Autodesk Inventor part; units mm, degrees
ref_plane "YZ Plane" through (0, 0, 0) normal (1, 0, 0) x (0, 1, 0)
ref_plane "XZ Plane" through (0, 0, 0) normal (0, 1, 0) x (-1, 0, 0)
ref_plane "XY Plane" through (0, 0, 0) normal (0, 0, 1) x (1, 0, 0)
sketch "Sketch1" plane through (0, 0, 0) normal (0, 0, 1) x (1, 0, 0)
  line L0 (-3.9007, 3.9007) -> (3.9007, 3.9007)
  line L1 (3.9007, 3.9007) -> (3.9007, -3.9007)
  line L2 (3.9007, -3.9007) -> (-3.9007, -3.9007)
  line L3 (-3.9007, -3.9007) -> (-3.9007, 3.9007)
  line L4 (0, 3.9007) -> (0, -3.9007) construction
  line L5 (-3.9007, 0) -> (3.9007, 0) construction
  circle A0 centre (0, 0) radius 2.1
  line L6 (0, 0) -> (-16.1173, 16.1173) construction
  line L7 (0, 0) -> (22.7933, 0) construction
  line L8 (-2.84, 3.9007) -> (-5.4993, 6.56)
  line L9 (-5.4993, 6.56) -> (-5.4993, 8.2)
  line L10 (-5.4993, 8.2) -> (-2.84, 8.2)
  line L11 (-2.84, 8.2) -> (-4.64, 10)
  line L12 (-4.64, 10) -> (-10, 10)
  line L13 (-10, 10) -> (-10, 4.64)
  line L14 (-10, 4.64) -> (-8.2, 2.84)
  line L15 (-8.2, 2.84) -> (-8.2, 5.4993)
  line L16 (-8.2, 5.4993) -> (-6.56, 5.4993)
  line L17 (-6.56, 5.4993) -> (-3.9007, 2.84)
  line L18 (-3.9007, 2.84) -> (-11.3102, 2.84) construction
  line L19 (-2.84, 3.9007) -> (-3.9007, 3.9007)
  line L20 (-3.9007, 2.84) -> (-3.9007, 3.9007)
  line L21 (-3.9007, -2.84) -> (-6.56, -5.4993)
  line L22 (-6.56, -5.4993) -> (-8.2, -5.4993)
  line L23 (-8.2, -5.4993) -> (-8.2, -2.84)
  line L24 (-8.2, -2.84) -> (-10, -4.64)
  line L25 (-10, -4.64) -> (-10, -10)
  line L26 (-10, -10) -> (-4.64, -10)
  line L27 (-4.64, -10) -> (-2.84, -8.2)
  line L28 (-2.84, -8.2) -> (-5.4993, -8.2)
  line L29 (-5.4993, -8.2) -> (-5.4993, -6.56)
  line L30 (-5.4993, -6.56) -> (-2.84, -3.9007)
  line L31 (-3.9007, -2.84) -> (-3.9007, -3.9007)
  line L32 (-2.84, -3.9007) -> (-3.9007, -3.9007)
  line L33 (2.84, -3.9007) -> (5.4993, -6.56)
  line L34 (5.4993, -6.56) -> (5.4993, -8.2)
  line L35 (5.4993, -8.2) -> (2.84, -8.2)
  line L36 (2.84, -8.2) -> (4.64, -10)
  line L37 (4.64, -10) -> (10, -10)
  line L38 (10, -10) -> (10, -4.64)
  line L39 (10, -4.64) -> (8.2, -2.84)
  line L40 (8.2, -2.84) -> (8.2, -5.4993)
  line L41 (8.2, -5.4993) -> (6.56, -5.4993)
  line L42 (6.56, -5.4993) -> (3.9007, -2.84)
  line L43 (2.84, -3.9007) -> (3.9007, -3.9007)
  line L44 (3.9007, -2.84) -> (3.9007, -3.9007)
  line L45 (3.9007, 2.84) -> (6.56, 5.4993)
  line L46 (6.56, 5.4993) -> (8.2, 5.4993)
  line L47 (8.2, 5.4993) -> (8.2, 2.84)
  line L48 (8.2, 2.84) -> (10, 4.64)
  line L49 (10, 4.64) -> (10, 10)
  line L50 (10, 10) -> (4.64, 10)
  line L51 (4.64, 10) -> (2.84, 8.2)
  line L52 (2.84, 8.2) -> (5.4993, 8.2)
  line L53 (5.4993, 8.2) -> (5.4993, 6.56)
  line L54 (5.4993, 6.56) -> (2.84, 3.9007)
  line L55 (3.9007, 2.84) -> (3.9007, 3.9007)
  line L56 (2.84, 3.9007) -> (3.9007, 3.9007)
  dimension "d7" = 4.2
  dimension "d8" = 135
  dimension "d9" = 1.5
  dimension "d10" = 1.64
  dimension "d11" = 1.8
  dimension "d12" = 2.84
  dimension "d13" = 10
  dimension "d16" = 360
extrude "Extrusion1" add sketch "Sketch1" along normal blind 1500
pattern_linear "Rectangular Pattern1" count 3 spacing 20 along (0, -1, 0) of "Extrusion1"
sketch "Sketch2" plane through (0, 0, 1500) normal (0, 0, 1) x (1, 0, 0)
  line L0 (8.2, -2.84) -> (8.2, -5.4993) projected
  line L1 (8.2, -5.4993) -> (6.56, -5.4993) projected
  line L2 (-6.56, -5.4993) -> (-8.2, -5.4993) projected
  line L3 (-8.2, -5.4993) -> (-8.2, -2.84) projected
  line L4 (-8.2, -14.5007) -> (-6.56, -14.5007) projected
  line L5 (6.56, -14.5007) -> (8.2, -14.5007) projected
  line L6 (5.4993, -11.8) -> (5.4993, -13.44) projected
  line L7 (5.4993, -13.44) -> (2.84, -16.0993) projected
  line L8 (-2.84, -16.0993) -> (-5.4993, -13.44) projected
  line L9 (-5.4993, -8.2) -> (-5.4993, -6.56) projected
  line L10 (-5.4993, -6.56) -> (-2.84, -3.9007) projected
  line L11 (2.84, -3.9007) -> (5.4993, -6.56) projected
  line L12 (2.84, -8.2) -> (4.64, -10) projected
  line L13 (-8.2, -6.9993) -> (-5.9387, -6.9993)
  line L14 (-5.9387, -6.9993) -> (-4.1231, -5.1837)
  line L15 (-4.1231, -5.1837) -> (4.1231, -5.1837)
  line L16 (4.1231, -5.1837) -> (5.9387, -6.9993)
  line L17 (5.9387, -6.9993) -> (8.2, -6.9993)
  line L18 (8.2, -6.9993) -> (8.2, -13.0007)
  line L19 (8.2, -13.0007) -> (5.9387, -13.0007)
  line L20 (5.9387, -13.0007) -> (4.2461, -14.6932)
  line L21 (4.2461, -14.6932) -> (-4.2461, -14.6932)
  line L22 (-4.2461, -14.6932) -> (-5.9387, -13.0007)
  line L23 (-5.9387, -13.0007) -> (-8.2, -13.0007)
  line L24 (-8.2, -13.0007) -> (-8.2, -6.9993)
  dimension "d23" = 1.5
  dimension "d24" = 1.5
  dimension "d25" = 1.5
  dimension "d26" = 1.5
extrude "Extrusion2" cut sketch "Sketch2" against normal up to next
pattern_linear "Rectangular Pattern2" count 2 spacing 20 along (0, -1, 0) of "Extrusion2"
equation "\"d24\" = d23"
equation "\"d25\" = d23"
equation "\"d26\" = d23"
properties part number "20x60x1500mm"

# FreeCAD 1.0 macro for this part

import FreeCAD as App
import Part
import Sketcher
from FreeCAD import Vector


def add_polygon(sketch, points):
    """Adds a closed chain of lines whose ends are joined by coincident constraints."""
    first, n = sketch.GeometryCount, len(points)
    for a, b in zip(points, points[1:] + points[:1]):
        sketch.addGeometry(Part.LineSegment(App.Vector(*a, 0), App.Vector(*b, 0)), False)
    for i in range(n):
        sketch.addConstraint(Sketcher.Constraint("Coincident", first + i, 2, first + (i + 1) % n, 1))

doc = App.newDocument("Part")
params = doc.addObject("Spreadsheet::Sheet", "Params")
for row, (alias, value) in enumerate([
    ("sketch1_diameter", "4.2 mm"),
    ("sketch1_width", "1.64 mm"),
    ("pad1_length", "1500 mm"),
    ("linearpattern_pitch", "20 mm"),
    ("pocket1_length", "1500 mm"),
    ("linearpattern2_pitch", "20 mm"),
], start=1):
    params.set(f"A{row}", alias)
    params.set(f"B{row}", "=" + value)
    params.setAlias(f"B{row}", alias)

body = doc.addObject("PartDesign::Body", "Body")

# Sketch on XY plane
sketch1 = body.newObject("Sketcher::SketchObject", "Sketch")
sketch1.AttachmentSupport = (doc.getObject("XY_Plane"), [""])
sketch1.MapMode = "FlatFace"
add_polygon(sketch1, [(-6.56, 5.4993), (-3.9007, 2.84), (-3.9007, -2.84), (-6.56, -5.4993), (-8.2, -5.4993), (-8.2, -2.84), (-10, -4.64), (-10, -10), (-4.64, -10), (-2.84, -8.2), (-5.4993, -8.2), (-5.4993, -6.56), (-2.84, -3.9007), (2.84, -3.9007), (5.4993, -6.56), (5.4993, -8.2), (2.84, -8.2), (4.64, -10), (10, -10), (10, -4.64), (8.2, -2.84), (8.2, -5.4993), (6.56, -5.4993), (3.9007, -2.84), (3.9007, 2.84), (6.56, 5.4993), (8.2, 5.4993), (8.2, 2.84), (10, 4.64), (10, 10), (4.64, 10), (2.84, 8.2), (5.4993, 8.2), (5.4993, 6.56), (2.84, 3.9007), (-2.84, 3.9007), (-5.4993, 6.56), (-5.4993, 8.2), (-2.84, 8.2), (-4.64, 10), (-10, 10), (-10, 4.64), (-8.2, 2.84), (-8.2, 5.4993)])  # lines 0-43
sketch1.addGeometry(Part.Circle(Vector(0, 0, 0), Vector(0, 0, 1), 2.1), False)  # 44
sketch1.addConstraint([
    Sketcher.Constraint("Vertical", 1),
    Sketcher.Constraint("Horizontal", 3),
    Sketcher.Constraint("Vertical", 4),
    Sketcher.Constraint("Vertical", 6),
    Sketcher.Constraint("Horizontal", 7),
    Sketcher.Constraint("Horizontal", 9),
    Sketcher.Constraint("Vertical", 10),
    Sketcher.Constraint("Horizontal", 12),
    Sketcher.Constraint("Vertical", 14),
    Sketcher.Constraint("Horizontal", 15),
    Sketcher.Constraint("Horizontal", 17),
    Sketcher.Constraint("Vertical", 18),
    Sketcher.Constraint("Vertical", 20),
    Sketcher.Constraint("Horizontal", 21),
    Sketcher.Constraint("Vertical", 23),
    Sketcher.Constraint("Horizontal", 25),
    Sketcher.Constraint("Vertical", 26),
    Sketcher.Constraint("Vertical", 28),
    Sketcher.Constraint("Horizontal", 29),
    Sketcher.Constraint("Horizontal", 31),
    Sketcher.Constraint("Vertical", 32),
    Sketcher.Constraint("Horizontal", 34),
    Sketcher.Constraint("Vertical", 36),
    Sketcher.Constraint("Horizontal", 37),
    Sketcher.Constraint("Horizontal", 39),
    Sketcher.Constraint("Vertical", 40),
    Sketcher.Constraint("Vertical", 42),
    Sketcher.Constraint("Horizontal", 43),
    Sketcher.Constraint("Coincident", 44, 3, -1, 1),
    Sketcher.Constraint("Symmetric", 0, 2, 22, 2, -1, 1),
    Sketcher.Constraint("Symmetric", 2, 2, 24, 2, -1, 1),
    Sketcher.Constraint("Symmetric", 4, 2, 26, 2, -1, 1),
    Sketcher.Constraint("Symmetric", 5, 2, 27, 2, -1, 1),
    Sketcher.Constraint("Symmetric", 7, 2, 29, 2, -1, 1),
    Sketcher.Constraint("Symmetric", 8, 2, 30, 2, -1, 1),
    Sketcher.Constraint("Symmetric", 10, 2, 32, 2, -1, 1),
    Sketcher.Constraint("Symmetric", 11, 2, 33, 2, -1, 1),
    Sketcher.Constraint("Symmetric", 13, 2, 35, 2, -1, 1),
    Sketcher.Constraint("Symmetric", 15, 2, 37, 2, -1, 1),
    Sketcher.Constraint("Symmetric", 16, 2, 38, 2, -1, 1),
    Sketcher.Constraint("Symmetric", 18, 2, 40, 2, -1, 1),
    Sketcher.Constraint("Symmetric", 19, 2, 41, 2, -1, 1),
    Sketcher.Constraint("Symmetric", 21, 2, 43, 2, -1, 1),
    Sketcher.Constraint("Symmetric", 10, 2, 13, 2, -2),
    Sketcher.Constraint("Symmetric", 8, 2, 15, 2, -2),
    Sketcher.Constraint("Symmetric", 7, 2, 16, 2, -2),
    Sketcher.Constraint("Symmetric", 5, 2, 18, 2, -2),
    Sketcher.Constraint("Symmetric", 4, 2, 19, 2, -2),
    Sketcher.Constraint("Symmetric", 2, 2, 21, 2, -2),
    Sketcher.Constraint("Perpendicular", 0, 2),
    Sketcher.Constraint("Parallel", 2, 5),
    Sketcher.Constraint("Parallel", 5, 8),
    Sketcher.Constraint("Parallel", 8, 11),
    Sketcher.Constraint("Perpendicular", 11, 13),
    Sketcher.Constraint("Parallel", 13, 16),
    Sketcher.Constraint("Perpendicular", 22, 24),
    Sketcher.Constraint("Perpendicular", 33, 35),
    Sketcher.Constraint("Horizontal", 1, 2, 4, 2),
    Sketcher.Constraint("Vertical", 8, 2, 11, 2),
    Sketcher.Constraint("Equal", 34, 1),
    Sketcher.Constraint("Equal", 37, 4),
    Sketcher.Constraint("Equal", 39, 6),
    Sketcher.Constraint("Equal", 43, 10),
    Sketcher.Constraint("Equal", 5, 8),
    Sketcher.Constraint("Diameter", 44, 4.2),
    Sketcher.Constraint("DistanceX", 5, 2, -1, 1, 10.0),
    Sketcher.Constraint("DistanceX", 3, 2, 3, 1, 1.64),
    Sketcher.Constraint("DistanceX", 5, 2, 3, 2, 1.8),
    Sketcher.Constraint("DistanceY", -1, 1, 0, 2, 2.84),
    Sketcher.Constraint("DistanceX", 9, 2, 9, 1, 2.6593),
])
sketch1.setExpression("Constraints[108]", "Params.sketch1_diameter")
sketch1.setExpression("Constraints[110]", "Params.sketch1_width")
pad1 = body.newObject("PartDesign::Pad", "Pad")
pad1.Profile = sketch1
pad1.setExpression("Length", "Params.pad1_length")
doc.recompute()

linearpattern = body.newObject("PartDesign::LinearPattern", "LinearPattern")
linearpattern.Originals = [pad1]
linearpattern.Direction = (doc.getObject("Y_Axis"), [""])
linearpattern.Mode = "offset"
linearpattern.setExpression("Offset", "Params.linearpattern_pitch")
linearpattern.Occurrences = 3
linearpattern.Reversed = True
body.Tip = linearpattern

# Sketch on XY plane
sketch2 = body.newObject("Sketcher::SketchObject", "Sketch001")
sketch2.AttachmentSupport = (doc.getObject("XY_Plane"), [""])
sketch2.MapMode = "FlatFace"
sketch2.AttachmentOffset = App.Placement(Vector(0, 0, 1500), App.Rotation())
add_polygon(sketch2, [(4.2461, -14.6932), (5.499337, -13.440037), (5.9387, -13.0007), (8.2, -13.0007), (8.2, -6.9993), (5.9387, -6.9993), (5.4993, -6.56), (4.1231, -5.1837), (-4.12305, -5.18375), (-5.49935, -6.55995), (-5.9387, -6.9993), (-8.2, -6.9993), (-8.2, -13.0007), (-5.9387, -13.0007), (-5.4993, -13.44), (-4.2461, -14.6932)])  # lines 0-15
sketch2.addConstraint([
    Sketcher.Constraint("Horizontal", 2),
    Sketcher.Constraint("Vertical", 3),
    Sketcher.Constraint("Horizontal", 4),
    Sketcher.Constraint("Horizontal", 7),
    Sketcher.Constraint("Horizontal", 10),
    Sketcher.Constraint("Vertical", 11),
    Sketcher.Constraint("Horizontal", 12),
    Sketcher.Constraint("Horizontal", 15),
    Sketcher.Constraint("Symmetric", 5, 2, 8, 2, -2),
    Sketcher.Constraint("Symmetric", 4, 2, 9, 2, -2),
    Sketcher.Constraint("Symmetric", 2, 2, 11, 2, -2),
    Sketcher.Constraint("Symmetric", 0, 2, 13, 2, -2),
    Sketcher.Constraint("Parallel", 0, 1),
    Sketcher.Constraint("Perpendicular", 1, 5),
    Sketcher.Constraint("Parallel", 5, 6),
    Sketcher.Constraint("Perpendicular", 6, 8),
    Sketcher.Constraint("Parallel", 8, 9),
    Sketcher.Constraint("Perpendicular", 9, 13),
    Sketcher.Constraint("Parallel", 13, 14),
    Sketcher.Constraint("Vertical", 1, 2, 4, 2),
    Sketcher.Constraint("Vertical", 0, 2, 5, 2),
    Sketcher.Constraint("DistanceX", -1, 1, 2, 2, 8.2),
    Sketcher.Constraint("DistanceY", 0, 2, -1, 1, 13.44),
    Sketcher.Constraint("DistanceY", 5, 2, -1, 1, 6.56),
    Sketcher.Constraint("DistanceX", 2, 1, 2, 2, 2.2613),
    Sketcher.Constraint("DistanceX", 7, 2, 7, 1, 8.2462),
    Sketcher.Constraint("DistanceX", 15, 1, 15, 2, 8.4922),
    Sketcher.Constraint("DistanceY", 3, 1, 3, 2, 6.0014),
])
pocket1 = body.newObject("PartDesign::Pocket", "Pocket")
pocket1.Profile = sketch2
pocket1.setExpression("Length", "Params.pocket1_length")
doc.recompute()

linearpattern2 = body.newObject("PartDesign::LinearPattern", "LinearPattern001")
linearpattern2.Originals = [pocket1]
linearpattern2.Direction = (doc.getObject("Y_Axis"), [""])
linearpattern2.Mode = "offset"
linearpattern2.setExpression("Offset", "Params.linearpattern2_pitch")
linearpattern2.Occurrences = 2
linearpattern2.Reversed = True
body.Tip = linearpattern2

doc.recompute()
